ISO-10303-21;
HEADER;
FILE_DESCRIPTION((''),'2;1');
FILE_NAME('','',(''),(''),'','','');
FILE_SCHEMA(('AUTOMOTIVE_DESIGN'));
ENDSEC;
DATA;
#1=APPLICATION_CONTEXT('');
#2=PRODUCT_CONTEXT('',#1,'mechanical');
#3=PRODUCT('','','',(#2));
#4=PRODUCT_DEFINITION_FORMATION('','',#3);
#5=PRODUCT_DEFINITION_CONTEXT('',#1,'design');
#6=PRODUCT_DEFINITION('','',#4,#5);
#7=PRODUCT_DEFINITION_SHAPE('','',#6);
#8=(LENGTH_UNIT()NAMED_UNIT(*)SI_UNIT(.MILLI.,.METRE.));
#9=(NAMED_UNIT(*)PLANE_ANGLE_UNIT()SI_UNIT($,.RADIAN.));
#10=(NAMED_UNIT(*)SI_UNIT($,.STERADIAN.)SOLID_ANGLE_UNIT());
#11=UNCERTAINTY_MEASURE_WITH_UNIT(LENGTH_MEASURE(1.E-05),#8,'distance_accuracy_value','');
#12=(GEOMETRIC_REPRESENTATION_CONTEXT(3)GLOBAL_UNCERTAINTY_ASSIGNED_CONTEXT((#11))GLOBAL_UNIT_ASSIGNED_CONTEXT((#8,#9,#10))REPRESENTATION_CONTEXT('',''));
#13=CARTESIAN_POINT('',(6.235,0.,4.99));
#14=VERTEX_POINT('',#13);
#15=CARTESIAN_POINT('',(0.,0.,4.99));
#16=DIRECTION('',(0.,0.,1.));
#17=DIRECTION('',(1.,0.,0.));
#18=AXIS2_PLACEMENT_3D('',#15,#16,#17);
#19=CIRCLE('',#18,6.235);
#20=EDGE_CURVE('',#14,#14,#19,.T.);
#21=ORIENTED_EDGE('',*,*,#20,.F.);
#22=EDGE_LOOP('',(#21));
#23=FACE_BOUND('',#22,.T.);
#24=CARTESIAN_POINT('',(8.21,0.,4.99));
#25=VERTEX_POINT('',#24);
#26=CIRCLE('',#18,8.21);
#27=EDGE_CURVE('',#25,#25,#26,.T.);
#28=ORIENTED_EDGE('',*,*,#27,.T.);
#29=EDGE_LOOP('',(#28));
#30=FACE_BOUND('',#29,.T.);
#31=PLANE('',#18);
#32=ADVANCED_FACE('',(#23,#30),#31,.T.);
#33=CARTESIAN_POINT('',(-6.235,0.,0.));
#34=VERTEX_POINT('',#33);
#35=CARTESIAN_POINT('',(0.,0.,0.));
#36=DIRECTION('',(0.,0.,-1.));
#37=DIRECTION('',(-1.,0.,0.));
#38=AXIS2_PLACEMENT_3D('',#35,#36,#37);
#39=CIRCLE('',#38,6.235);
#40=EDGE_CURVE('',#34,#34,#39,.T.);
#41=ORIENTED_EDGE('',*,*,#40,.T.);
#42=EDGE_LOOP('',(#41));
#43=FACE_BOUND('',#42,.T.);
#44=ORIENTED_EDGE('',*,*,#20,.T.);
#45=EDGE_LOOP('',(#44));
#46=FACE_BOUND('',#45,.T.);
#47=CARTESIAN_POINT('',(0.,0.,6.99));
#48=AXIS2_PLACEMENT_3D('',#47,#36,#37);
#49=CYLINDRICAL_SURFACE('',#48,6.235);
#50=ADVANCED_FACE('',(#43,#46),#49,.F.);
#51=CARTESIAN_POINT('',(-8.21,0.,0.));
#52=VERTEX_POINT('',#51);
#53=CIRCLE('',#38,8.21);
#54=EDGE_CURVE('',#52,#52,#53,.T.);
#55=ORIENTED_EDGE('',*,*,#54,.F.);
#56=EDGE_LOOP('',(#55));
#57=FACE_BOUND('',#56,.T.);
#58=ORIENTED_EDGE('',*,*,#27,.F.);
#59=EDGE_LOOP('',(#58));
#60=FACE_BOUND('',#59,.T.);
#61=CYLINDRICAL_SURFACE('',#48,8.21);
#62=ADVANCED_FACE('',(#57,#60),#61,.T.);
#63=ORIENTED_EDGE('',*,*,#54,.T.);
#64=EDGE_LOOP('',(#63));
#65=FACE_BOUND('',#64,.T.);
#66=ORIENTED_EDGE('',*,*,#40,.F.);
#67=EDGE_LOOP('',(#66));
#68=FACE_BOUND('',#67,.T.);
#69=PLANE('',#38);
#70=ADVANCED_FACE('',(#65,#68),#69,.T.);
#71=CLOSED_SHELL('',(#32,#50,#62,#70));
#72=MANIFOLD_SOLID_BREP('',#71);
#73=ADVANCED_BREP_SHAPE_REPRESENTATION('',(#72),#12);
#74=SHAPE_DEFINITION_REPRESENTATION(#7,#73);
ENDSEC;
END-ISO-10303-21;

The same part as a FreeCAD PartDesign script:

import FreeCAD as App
import Part
import Sketcher
from FreeCAD import Vector
Q = App.Units.Quantity

doc = App.newDocument("Part")
body = doc.addObject("PartDesign::Body", "Body")

# Sketch on XY plane
sketch1 = doc.addObject("Sketcher::SketchObject", "Sketch")
body.addObject(sketch1)
sketch1.AttachmentSupport = (doc.XY_Plane, [""])
sketch1.MapMode = "FlatFace"
sketch1.addGeometry(Part.Circle(Vector(0, 0, 0), Vector(0, 0, 1), 8), False)
sketch1.addGeometry(Part.Circle(Vector(0, 0, 0), Vector(0, 0, 1), 6), False)
sketch1.addConstraint(Sketcher.Constraint("Coincident", 0, 3, -1, 1))
sketch1.addConstraint(Sketcher.Constraint("Coincident", 1, 3, -1, 1))
sketch1.addConstraint(Sketcher.Constraint("Diameter", 0, Q("16.42 mm")))
sketch1.addConstraint(Sketcher.Constraint("Diameter", 1, Q("12.47 mm")))
pad1 = doc.addObject("PartDesign::Pad", "Pad")
body.addObject(pad1)
pad1.Profile = sketch1
pad1.Length = 6.99

# Sketch on XY plane
sketch2 = doc.addObject("Sketcher::SketchObject", "Sketch001")
body.addObject(sketch2)
sketch2.AttachmentSupport = (doc.XY_Plane, [""])
sketch2.MapMode = "FlatFace"
sketch2.AttachmentOffset = App.Placement(Vector(0, 0, 4.99), App.Rotation())
sketch2.addGeometry(Part.Circle(Vector(0, 0, 0), Vector(0, 0, 1), 8), False)
sketch2.addGeometry(Part.Circle(Vector(0, 0, 0), Vector(0, 0, 1), 6), False)
sketch2.addConstraint(Sketcher.Constraint("Coincident", 0, 3, -1, 1))
sketch2.addConstraint(Sketcher.Constraint("Coincident", 1, 3, -1, 1))
sketch2.addConstraint(Sketcher.Constraint("Diameter", 0, Q("16.42 mm")))
sketch2.addConstraint(Sketcher.Constraint("Diameter", 1, Q("12.47 mm")))
pocket1 = doc.addObject("PartDesign::Pocket", "Pocket")
body.addObject(pocket1)
pocket1.Profile = sketch2
pocket1.Length = 2
pocket1.Reversed = True

# Sketch on XY plane
sketch3 = doc.addObject("Sketcher::SketchObject", "Sketch002")
body.addObject(sketch3)
sketch3.AttachmentSupport = (doc.XY_Plane, [""])
sketch3.MapMode = "FlatFace"
sketch3.AttachmentOffset = App.Placement(Vector(0, 0, -2), App.Rotation())
sketch3.addGeometry(Part.Circle(Vector(0, 0, 0), Vector(0, 0, 1), 8), False)
sketch3.addGeometry(Part.Circle(Vector(0, 0, 0), Vector(0, 0, 1), 6), False)
sketch3.addConstraint(Sketcher.Constraint("Coincident", 0, 3, -1, 1))
sketch3.addConstraint(Sketcher.Constraint("Coincident", 1, 3, -1, 1))
sketch3.addConstraint(Sketcher.Constraint("Diameter", 0, Q("16.42 mm")))
sketch3.addConstraint(Sketcher.Constraint("Diameter", 1, Q("12.47 mm")))
pad2 = doc.addObject("PartDesign::Pad", "Pad001")
body.addObject(pad2)
pad2.Profile = sketch3
pad2.Length = 2

# Sketch on XY plane
sketch4 = doc.addObject("Sketcher::SketchObject", "Sketch003")
body.addObject(sketch4)
sketch4.AttachmentSupport = (doc.XY_Plane, [""])
sketch4.MapMode = "FlatFace"
sketch4.AttachmentOffset = App.Placement(Vector(0, 0, -2), App.Rotation())
sketch4.addGeometry(Part.Circle(Vector(0, 0, 0), Vector(0, 0, 1), 8), False)
sketch4.addGeometry(Part.Circle(Vector(0, 0, 0), Vector(0, 0, 1), 6), False)
sketch4.addConstraint(Sketcher.Constraint("Coincident", 0, 3, -1, 1))
sketch4.addConstraint(Sketcher.Constraint("Coincident", 1, 3, -1, 1))
sketch4.addConstraint(Sketcher.Constraint("Diameter", 0, Q("16.42 mm")))
sketch4.addConstraint(Sketcher.Constraint("Diameter", 1, Q("12.47 mm")))
pocket2 = doc.addObject("PartDesign::Pocket", "Pocket001")
body.addObject(pocket2)
pocket2.Profile = sketch4
pocket2.Length = 2
pocket2.Reversed = True

doc.recompute()
